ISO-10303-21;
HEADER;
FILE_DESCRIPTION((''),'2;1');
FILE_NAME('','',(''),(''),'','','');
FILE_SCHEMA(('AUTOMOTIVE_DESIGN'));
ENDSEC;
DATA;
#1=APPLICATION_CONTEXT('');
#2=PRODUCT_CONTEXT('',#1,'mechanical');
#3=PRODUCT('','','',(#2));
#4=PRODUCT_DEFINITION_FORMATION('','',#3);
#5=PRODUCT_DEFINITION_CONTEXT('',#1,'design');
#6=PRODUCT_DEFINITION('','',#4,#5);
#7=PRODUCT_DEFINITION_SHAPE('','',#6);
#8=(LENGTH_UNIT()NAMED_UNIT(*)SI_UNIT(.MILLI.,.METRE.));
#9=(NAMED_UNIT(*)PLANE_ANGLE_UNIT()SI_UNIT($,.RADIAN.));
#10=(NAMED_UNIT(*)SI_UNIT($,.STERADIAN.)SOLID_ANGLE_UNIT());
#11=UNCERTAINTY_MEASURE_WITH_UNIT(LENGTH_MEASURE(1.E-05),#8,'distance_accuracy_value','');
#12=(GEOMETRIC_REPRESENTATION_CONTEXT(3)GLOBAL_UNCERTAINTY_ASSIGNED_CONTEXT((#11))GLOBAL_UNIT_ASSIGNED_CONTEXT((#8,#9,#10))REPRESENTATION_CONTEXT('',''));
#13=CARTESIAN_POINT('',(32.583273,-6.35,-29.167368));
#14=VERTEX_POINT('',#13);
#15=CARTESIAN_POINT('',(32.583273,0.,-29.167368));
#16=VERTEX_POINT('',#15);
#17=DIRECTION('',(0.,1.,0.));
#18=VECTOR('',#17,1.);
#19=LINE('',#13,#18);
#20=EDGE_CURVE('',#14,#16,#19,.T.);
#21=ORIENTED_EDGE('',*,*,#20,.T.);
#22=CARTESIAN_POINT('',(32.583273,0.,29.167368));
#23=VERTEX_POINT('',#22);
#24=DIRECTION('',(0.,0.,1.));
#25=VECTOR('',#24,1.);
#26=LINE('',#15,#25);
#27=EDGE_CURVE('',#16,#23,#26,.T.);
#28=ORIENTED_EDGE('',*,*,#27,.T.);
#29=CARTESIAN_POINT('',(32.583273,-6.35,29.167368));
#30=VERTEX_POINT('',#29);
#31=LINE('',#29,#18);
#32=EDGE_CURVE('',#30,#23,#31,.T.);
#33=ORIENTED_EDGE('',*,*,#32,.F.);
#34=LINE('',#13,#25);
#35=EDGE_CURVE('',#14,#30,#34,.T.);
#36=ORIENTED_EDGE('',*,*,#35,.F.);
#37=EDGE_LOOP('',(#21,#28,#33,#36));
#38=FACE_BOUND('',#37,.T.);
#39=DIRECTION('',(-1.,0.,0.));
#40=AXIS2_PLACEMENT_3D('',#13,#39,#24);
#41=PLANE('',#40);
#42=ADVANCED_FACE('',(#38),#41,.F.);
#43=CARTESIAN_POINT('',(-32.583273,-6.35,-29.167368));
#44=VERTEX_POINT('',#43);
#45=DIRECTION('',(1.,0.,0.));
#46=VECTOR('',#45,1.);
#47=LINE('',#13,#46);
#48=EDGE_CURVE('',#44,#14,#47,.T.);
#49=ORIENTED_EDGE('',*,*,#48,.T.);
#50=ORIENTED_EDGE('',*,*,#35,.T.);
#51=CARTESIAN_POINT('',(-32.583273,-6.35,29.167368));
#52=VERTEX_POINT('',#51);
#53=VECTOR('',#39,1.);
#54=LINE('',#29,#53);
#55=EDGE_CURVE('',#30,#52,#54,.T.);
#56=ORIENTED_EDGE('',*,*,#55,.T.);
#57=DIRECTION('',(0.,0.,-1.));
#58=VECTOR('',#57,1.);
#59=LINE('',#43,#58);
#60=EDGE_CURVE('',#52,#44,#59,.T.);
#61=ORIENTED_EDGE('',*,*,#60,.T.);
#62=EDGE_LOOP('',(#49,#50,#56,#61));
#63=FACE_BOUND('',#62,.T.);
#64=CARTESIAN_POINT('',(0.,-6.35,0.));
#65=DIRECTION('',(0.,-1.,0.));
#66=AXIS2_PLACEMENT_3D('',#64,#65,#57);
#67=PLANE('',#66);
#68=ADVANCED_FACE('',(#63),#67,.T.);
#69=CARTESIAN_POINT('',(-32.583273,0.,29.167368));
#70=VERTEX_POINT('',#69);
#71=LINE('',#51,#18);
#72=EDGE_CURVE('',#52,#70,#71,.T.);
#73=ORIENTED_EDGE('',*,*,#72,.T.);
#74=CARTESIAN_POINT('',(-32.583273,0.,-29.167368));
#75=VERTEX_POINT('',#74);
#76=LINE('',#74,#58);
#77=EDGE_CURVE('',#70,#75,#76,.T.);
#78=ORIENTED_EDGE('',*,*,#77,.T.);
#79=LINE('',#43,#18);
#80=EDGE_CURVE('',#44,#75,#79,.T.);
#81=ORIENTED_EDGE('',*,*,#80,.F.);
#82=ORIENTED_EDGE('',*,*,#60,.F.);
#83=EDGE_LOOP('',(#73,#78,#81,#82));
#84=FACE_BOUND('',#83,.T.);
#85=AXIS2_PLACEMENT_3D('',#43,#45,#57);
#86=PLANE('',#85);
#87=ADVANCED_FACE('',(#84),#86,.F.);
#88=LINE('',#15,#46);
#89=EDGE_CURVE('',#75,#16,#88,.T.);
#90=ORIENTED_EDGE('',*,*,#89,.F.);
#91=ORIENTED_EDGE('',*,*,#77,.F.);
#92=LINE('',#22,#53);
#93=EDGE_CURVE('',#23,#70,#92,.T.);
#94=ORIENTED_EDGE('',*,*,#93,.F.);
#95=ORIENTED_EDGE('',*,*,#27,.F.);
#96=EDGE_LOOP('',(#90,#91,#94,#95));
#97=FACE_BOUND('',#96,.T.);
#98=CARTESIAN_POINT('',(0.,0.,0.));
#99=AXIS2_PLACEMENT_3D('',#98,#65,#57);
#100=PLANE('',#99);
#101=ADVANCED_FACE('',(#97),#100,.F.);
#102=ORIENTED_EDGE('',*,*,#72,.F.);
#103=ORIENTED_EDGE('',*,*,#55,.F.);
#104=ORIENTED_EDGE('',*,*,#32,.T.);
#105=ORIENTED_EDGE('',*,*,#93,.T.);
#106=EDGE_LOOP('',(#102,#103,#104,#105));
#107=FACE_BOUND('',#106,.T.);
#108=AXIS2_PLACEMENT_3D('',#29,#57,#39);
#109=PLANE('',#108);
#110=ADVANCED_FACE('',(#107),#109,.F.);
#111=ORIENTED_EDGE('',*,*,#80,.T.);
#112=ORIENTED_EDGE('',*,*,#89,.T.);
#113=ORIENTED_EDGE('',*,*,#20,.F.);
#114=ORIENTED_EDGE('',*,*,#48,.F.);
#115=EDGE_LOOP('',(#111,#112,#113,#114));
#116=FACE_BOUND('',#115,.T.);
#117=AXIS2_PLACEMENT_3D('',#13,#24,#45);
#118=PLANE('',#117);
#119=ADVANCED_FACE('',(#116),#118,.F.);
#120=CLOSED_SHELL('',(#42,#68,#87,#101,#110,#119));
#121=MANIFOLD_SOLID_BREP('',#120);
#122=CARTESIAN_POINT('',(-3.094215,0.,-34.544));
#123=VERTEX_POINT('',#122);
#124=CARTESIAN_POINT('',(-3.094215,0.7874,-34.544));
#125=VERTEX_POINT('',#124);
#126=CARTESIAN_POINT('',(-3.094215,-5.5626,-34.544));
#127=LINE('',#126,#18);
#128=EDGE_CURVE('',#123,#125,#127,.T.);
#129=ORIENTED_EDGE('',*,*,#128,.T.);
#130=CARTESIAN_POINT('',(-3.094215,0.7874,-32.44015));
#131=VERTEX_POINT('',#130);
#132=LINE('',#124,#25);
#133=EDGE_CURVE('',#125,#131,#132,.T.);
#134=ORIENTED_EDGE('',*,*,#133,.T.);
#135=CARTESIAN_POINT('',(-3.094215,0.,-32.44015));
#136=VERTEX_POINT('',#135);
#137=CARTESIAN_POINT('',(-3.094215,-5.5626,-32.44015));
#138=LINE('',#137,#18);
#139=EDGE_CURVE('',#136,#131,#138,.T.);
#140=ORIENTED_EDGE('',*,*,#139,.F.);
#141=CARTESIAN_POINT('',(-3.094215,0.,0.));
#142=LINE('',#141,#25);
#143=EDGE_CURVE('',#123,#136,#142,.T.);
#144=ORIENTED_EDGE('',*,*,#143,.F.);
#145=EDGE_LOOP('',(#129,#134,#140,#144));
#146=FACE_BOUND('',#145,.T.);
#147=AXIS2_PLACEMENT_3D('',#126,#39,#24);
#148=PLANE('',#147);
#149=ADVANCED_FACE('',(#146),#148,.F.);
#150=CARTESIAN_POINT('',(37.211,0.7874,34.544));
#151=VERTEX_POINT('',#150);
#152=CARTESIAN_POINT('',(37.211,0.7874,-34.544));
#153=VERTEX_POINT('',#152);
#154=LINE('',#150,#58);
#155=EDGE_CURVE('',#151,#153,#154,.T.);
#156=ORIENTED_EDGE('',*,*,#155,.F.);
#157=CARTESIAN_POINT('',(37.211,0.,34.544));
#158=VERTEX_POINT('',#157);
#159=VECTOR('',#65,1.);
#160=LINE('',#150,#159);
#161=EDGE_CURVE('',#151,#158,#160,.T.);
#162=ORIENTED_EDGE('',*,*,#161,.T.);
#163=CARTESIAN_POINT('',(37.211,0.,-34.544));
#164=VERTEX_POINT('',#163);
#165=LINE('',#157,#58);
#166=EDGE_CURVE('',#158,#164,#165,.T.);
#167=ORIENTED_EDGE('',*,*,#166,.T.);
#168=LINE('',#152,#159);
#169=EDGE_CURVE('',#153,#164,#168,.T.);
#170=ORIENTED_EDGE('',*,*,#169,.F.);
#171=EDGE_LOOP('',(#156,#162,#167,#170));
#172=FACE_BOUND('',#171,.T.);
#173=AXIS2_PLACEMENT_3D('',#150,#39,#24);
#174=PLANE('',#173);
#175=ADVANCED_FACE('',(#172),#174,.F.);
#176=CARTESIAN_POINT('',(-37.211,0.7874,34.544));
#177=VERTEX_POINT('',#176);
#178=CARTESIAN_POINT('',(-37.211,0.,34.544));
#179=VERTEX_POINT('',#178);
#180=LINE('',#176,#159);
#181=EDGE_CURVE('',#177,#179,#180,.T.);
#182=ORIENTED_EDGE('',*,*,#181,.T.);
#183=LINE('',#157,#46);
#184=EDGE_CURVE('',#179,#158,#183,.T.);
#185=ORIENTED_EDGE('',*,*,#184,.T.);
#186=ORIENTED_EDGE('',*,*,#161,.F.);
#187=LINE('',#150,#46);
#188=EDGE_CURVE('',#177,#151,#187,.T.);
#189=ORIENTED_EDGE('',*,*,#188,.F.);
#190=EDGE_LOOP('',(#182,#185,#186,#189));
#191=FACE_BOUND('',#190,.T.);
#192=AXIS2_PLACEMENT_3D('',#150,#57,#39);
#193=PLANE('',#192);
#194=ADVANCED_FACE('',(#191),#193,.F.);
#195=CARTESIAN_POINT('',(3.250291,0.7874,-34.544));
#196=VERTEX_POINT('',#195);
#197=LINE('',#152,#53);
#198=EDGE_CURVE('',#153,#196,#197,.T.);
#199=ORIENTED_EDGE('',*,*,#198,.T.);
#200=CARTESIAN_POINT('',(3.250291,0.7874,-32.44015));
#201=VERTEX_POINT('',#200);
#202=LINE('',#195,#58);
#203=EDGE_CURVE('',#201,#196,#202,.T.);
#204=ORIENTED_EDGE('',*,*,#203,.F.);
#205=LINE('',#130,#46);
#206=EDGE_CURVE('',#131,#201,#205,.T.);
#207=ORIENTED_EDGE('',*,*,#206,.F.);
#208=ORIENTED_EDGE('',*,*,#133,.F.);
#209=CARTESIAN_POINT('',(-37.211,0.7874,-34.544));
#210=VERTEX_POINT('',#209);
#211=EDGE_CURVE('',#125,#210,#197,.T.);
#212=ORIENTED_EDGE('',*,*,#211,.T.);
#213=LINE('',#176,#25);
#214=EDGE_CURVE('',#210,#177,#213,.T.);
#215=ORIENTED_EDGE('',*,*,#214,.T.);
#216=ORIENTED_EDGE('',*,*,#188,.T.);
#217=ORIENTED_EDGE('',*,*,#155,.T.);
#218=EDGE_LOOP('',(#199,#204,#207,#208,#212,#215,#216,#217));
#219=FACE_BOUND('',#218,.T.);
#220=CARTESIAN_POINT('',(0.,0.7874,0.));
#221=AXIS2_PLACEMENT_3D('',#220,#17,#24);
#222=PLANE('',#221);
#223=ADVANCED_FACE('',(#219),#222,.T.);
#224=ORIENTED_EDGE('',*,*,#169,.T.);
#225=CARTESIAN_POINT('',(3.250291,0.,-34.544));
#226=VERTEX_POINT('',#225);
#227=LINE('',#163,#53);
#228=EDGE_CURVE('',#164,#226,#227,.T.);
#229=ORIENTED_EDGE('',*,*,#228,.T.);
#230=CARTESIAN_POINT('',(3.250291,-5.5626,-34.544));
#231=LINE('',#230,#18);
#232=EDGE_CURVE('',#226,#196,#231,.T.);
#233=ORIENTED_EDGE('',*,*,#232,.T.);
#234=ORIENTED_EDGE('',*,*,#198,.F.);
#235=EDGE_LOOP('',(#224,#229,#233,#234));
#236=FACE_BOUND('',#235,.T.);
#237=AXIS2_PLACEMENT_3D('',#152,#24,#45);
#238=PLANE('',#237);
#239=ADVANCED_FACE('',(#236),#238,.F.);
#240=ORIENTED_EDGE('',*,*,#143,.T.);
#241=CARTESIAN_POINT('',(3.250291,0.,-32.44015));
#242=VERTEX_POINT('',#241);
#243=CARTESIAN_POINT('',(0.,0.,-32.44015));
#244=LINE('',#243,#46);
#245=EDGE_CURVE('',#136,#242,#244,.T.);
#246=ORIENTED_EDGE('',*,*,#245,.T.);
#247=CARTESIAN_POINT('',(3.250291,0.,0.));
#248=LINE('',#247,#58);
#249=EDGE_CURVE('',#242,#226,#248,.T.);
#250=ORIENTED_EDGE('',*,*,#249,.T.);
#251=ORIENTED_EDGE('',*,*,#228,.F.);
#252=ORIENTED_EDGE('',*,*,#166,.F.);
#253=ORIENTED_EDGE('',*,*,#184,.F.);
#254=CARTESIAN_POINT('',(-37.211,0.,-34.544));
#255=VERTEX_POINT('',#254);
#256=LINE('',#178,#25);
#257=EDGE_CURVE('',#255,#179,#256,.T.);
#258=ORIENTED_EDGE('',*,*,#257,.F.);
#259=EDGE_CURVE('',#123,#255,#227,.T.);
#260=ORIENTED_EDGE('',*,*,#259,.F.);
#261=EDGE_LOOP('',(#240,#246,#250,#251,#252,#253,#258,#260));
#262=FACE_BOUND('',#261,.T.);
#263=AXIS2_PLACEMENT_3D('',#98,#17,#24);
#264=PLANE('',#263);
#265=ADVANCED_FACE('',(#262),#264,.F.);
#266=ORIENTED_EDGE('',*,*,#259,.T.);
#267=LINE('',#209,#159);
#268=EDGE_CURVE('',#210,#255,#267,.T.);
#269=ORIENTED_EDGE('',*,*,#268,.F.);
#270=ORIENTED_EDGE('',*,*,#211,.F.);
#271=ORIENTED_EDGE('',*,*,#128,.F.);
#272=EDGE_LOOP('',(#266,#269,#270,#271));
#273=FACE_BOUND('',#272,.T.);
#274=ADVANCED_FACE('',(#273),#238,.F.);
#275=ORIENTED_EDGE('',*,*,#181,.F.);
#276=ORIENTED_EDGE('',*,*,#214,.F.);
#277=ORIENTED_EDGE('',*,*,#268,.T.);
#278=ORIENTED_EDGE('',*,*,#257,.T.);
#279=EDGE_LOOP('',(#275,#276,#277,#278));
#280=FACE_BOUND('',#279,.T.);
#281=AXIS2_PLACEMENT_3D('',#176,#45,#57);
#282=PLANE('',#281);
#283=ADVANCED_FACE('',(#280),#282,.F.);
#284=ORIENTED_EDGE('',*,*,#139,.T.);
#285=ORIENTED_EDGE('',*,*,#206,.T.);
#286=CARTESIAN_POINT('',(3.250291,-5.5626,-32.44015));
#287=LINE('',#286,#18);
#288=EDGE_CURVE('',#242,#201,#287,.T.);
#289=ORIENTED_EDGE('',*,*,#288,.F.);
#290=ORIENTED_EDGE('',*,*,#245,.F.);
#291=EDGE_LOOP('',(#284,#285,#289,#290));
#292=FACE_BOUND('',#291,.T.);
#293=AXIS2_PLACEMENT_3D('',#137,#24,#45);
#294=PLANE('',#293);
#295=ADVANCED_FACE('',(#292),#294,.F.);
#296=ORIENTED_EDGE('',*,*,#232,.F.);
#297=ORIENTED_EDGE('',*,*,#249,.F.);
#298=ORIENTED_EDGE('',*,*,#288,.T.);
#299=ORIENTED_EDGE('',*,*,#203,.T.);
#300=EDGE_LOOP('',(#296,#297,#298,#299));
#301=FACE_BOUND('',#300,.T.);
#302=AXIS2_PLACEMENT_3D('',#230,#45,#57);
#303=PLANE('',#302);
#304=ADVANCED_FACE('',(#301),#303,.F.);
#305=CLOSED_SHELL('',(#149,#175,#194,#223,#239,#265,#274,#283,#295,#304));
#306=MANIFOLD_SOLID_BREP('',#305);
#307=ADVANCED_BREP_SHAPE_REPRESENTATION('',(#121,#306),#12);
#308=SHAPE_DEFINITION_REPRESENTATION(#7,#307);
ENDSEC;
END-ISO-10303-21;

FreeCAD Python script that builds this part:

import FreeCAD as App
import Part
import Sketcher

V = App.Vector
Q = App.Units.Quantity


def add_polygon(sketch, points):
    """Adds a closed chain of lines whose ends are joined by coincident constraints."""
    first, n = sketch.GeometryCount, len(points)
    for a, b in zip(points, points[1:] + points[:1]):
        sketch.addGeometry(Part.LineSegment(App.Vector(*a, 0), App.Vector(*b, 0)), False)
    for i in range(n):
        sketch.addConstraint(Sketcher.Constraint("Coincident", first + i, 2, first + (i + 1) % n, 1))

doc = App.newDocument("Part")
body = doc.addObject("PartDesign::Body", "Body")

# Sketch on XZ plane
sketch1 = body.newObject("Sketcher::SketchObject", "Sketch")
sketch1.AttachmentSupport = (doc.getObject("XZ_Plane"), [""])
sketch1.MapMode = "FlatFace"
add_polygon(sketch1, [(-37.211, -34.544), (-37.211, 34.544), (37.211, 34.544), (37.211, -34.544)])  # lines 0-3
sketch1.addConstraint([
    Sketcher.Constraint("Vertical", 0),
    Sketcher.Constraint("Horizontal", 1),
    Sketcher.Constraint("Vertical", 2),
    Sketcher.Constraint("Horizontal", 3),
    Sketcher.Constraint("Symmetric", 0, 2, 2, 2, -1, 1),
    Sketcher.Constraint("DistanceX", 1, 1, 1, 2, Q("2.93 in")),
    Sketcher.Constraint("DistanceY", 0, 1, 0, 2, Q("2.72 in")),
])
pad1 = body.newObject("PartDesign::Pad", "Pad")
pad1.Profile = sketch1
pad1.Length = Q("0.031 in")
pad1.Reversed = True

# Sketch on XZ plane
sketch2 = body.newObject("Sketcher::SketchObject", "Sketch001")
sketch2.AttachmentSupport = (doc.getObject("XZ_Plane"), [""])
sketch2.MapMode = "FlatFace"
sketch2.AttachmentOffset = App.Placement(V(0, 0, -0.031 * 25.4), App.Rotation())
add_polygon(sketch2, [(-3.094215, -34.544), (-3.094215, -32.44015), (3.250291, -32.44015), (3.250291, -34.544)])  # lines 0-3
sketch2.addConstraint([
    Sketcher.Constraint("Vertical", 0),
    Sketcher.Constraint("Horizontal", 1),
    Sketcher.Constraint("Vertical", 2),
    Sketcher.Constraint("Horizontal", 3),
    Sketcher.Constraint("DistanceY", 2, 2, -1, 1, Q("1.36 in")),
    Sketcher.Constraint("DistanceY", 0, 1, 0, 2, Q("2.10385 mm")),
    Sketcher.Constraint("DistanceX", 1, 1, 1, 2, Q("6.344506 mm")),
    Sketcher.Constraint("DistanceX", -1, 1, 1, 2, Q("3.250291 mm")),
])
pocket1 = body.newObject("PartDesign::Pocket", "Pocket")
pocket1.Profile = sketch2
pocket1.Length = Q("0.25 in")
pocket1.Reversed = True
body2 = doc.addObject("PartDesign::Body", "Body001")

# Sketch on XZ plane
sketch3 = body2.newObject("Sketcher::SketchObject", "Sketch002")
sketch3.AttachmentSupport = (doc.getObject("XZ_Plane001"), [""])
sketch3.MapMode = "FlatFace"
add_polygon(sketch3, [(-32.583273, 29.167368), (-32.583273, -29.167368), (32.583273, -29.167368), (32.583273, 29.167368)])  # lines 0-3
sketch3.addConstraint([
    Sketcher.Constraint("Vertical", 0),
    Sketcher.Constraint("Horizontal", 1),
    Sketcher.Constraint("Vertical", 2),
    Sketcher.Constraint("Horizontal", 3),
    Sketcher.Constraint("Symmetric", 0, 2, 2, 2, -1, 1),
    Sketcher.Constraint("DistanceX", 1, 1, 1, 2, Q("65.166547 mm")),
    Sketcher.Constraint("DistanceY", 0, 2, 0, 1, Q("58.334735 mm")),
])
pad2 = body2.newObject("PartDesign::Pad", "Pad001")
pad2.Profile = sketch3
pad2.Length = Q("0.25 in")

doc.recompute()
